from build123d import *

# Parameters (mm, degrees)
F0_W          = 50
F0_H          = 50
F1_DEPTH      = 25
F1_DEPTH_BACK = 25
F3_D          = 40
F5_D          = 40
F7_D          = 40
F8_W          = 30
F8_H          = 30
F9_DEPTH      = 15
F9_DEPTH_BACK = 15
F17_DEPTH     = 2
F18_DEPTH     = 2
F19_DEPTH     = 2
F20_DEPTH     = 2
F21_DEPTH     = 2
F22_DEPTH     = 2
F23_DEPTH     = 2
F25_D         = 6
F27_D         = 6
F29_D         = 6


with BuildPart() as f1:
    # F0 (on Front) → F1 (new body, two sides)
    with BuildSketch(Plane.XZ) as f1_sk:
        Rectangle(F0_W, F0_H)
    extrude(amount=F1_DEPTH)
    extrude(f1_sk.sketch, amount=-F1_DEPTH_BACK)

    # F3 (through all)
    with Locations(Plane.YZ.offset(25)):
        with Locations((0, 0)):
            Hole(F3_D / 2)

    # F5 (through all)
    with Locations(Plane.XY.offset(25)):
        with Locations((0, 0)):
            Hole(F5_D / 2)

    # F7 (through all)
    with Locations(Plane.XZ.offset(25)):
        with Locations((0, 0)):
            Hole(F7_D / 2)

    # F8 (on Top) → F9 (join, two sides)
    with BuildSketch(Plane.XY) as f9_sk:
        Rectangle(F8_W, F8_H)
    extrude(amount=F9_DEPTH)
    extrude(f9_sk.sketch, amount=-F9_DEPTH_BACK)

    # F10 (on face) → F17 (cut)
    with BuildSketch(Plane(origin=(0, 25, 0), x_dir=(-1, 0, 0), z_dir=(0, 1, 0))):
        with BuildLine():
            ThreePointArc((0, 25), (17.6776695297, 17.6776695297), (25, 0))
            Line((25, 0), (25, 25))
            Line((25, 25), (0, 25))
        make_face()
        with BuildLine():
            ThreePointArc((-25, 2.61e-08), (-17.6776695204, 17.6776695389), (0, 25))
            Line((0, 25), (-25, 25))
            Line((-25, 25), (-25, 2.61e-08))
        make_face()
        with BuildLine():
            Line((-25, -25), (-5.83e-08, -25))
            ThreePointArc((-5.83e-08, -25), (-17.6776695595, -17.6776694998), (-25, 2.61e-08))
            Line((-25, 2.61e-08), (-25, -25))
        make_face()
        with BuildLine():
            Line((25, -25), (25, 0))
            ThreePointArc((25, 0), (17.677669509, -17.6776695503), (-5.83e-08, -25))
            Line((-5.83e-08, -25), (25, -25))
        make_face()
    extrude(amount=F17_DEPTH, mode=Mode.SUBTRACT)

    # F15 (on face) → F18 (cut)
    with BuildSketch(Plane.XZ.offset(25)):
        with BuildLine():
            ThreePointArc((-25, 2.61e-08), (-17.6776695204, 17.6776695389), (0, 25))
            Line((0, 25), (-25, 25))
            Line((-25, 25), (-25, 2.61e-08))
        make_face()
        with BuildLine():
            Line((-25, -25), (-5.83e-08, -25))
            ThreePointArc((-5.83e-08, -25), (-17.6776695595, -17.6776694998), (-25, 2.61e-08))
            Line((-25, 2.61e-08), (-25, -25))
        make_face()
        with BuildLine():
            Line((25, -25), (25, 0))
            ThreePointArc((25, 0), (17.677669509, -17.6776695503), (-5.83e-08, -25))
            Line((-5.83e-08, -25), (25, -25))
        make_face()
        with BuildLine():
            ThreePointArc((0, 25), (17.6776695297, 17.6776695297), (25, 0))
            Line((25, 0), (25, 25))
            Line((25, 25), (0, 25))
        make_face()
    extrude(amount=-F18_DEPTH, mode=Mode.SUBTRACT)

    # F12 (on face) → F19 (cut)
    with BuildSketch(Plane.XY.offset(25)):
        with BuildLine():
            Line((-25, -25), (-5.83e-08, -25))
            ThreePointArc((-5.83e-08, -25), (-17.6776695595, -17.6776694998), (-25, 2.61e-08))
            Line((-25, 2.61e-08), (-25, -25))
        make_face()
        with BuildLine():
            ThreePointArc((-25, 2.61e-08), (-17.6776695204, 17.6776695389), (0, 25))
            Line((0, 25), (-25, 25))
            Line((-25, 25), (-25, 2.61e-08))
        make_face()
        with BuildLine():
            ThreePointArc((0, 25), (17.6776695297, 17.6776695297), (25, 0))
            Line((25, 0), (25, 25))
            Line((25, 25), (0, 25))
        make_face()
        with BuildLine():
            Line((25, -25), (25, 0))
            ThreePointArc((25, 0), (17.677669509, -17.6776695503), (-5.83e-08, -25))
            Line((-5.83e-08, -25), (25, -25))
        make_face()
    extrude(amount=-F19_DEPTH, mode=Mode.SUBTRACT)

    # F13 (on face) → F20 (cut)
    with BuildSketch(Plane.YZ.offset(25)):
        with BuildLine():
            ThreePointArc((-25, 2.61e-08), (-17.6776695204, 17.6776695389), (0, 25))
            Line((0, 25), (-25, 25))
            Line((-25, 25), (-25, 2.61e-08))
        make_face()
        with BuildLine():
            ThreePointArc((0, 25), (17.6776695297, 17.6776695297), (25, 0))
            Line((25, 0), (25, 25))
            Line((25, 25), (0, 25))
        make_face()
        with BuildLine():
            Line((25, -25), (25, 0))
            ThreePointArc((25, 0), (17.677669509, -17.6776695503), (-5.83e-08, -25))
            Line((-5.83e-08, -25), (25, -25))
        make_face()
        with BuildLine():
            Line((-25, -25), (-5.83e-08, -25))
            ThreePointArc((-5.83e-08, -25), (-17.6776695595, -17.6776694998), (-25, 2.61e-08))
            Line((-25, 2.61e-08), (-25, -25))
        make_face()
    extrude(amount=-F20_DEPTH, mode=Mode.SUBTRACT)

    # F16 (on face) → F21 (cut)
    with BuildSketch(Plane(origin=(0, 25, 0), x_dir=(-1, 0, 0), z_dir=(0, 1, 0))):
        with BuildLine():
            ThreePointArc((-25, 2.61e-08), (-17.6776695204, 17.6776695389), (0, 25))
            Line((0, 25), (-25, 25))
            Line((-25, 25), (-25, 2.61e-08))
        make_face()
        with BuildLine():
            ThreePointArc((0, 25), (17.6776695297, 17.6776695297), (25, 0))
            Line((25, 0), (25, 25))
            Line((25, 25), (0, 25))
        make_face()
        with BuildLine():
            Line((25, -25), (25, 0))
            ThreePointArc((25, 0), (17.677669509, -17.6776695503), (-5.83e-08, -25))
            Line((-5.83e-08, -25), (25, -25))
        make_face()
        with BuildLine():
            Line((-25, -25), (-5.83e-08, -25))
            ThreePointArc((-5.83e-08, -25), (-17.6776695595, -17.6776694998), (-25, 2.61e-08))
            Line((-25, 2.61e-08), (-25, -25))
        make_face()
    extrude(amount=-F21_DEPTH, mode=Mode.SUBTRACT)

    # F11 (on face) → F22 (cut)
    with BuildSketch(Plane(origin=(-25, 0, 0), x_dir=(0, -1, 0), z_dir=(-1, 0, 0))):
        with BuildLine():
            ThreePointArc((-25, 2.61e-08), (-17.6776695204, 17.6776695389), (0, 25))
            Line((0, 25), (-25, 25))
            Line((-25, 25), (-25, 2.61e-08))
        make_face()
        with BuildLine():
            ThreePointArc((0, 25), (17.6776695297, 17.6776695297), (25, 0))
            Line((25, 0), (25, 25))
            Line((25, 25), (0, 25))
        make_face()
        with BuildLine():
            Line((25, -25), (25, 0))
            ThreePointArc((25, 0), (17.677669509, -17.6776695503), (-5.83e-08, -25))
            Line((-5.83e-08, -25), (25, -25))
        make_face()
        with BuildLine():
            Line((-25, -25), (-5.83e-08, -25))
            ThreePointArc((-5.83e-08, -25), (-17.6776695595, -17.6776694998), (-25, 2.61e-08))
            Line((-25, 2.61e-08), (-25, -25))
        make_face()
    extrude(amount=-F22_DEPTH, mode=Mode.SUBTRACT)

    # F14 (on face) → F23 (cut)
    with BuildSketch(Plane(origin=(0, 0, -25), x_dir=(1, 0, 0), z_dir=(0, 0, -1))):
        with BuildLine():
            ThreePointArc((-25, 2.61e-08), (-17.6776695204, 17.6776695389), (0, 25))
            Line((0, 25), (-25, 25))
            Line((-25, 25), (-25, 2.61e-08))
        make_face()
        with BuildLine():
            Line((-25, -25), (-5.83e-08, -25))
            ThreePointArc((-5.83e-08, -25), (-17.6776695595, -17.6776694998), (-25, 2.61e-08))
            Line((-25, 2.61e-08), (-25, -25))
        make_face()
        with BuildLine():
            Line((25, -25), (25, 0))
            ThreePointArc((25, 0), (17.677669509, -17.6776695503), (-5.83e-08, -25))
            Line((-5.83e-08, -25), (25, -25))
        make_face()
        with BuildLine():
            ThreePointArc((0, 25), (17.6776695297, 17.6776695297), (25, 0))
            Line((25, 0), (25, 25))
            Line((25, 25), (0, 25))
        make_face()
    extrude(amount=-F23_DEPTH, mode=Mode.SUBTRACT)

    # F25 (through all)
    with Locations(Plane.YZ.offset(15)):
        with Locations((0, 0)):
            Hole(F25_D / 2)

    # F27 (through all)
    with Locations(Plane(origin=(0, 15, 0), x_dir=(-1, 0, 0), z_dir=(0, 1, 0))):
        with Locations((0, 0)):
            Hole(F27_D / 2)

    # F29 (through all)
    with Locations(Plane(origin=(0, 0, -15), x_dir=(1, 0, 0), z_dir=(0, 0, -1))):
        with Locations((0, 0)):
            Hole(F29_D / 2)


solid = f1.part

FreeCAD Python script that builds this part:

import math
import FreeCAD as App
import Part
import Sketcher

V = App.Vector

doc = App.newDocument("Part")
body = doc.addObject("PartDesign::Body", "Body")

# Sketch on XZ plane
sketch1 = doc.addObject("Sketcher::SketchObject", "Sketch")
body.addObject(sketch1)
sketch1.AttachmentSupport = (doc.XZ_Plane, [""])
sketch1.MapMode = "FlatFace"
sketch1.addGeometry([
    Part.LineSegment(V(-25, 25, 0), V(-25, -25, 0)),
    Part.LineSegment(V(-25, -25, 0), V(25, -25, 0)),
    Part.LineSegment(V(25, -25, 0), V(25, 25, 0)),
    Part.LineSegment(V(25, 25, 0), V(-25, 25, 0)),
], False)
sketch1.addConstraint([
    Sketcher.Constraint("Coincident", 0, 2, 1, 1),
    Sketcher.Constraint("Coincident", 1, 2, 2, 1),
    Sketcher.Constraint("Coincident", 2, 2, 3, 1),
    Sketcher.Constraint("Coincident", 3, 2, 0, 1),
    Sketcher.Constraint("Vertical", 0),
    Sketcher.Constraint("Horizontal", 1),
    Sketcher.Constraint("Vertical", 2),
    Sketcher.Constraint("Horizontal", 3),
    Sketcher.Constraint("Symmetric", 0, 2, 2, 2, -1, 1),
    Sketcher.Constraint("Equal", 3, 0),
    Sketcher.Constraint("DistanceX", 1, 1, 1, 2, 50.0),
])
pad1 = doc.addObject("PartDesign::Pad", "Pad")
body.addObject(pad1)
pad1.Profile = sketch1
pad1.Type = "TwoLengths"
pad1.Length = 25
pad1.Length2 = 25

# Sketch on YZ plane
sketch2 = doc.addObject("Sketcher::SketchObject", "Sketch001")
body.addObject(sketch2)
sketch2.AttachmentSupport = (doc.YZ_Plane, [""])
sketch2.MapMode = "FlatFace"
sketch2.AttachmentOffset = App.Placement(V(0, 0, 25), App.Rotation())
sketch2.addGeometry(Part.Circle(V(0, 0, 0), V(0, 0, 1), 20), False)
sketch2.addConstraint([
    Sketcher.Constraint("Coincident", 0, 3, -1, 1),
    Sketcher.Constraint("Diameter", 0, 40.0),
])
doc.recompute()
hole = doc.addObject("PartDesign::Hole", "Hole")
body.addObject(hole)
hole.Profile = sketch2
hole.ThreadType = "None"
hole.Diameter = 40
hole.DepthType = "ThroughAll"

# Sketch on XY plane
sketch3 = doc.addObject("Sketcher::SketchObject", "Sketch002")
body.addObject(sketch3)
sketch3.AttachmentSupport = (doc.XY_Plane, [""])
sketch3.MapMode = "FlatFace"
sketch3.AttachmentOffset = App.Placement(V(0, 0, 25), App.Rotation())
sketch3.addGeometry(Part.Circle(V(0, 0, 0), V(0, 0, 1), 20), False)
sketch3.addConstraint([
    Sketcher.Constraint("Coincident", 0, 3, -1, 1),
    Sketcher.Constraint("Diameter", 0, 40.0),
])
doc.recompute()
hole2 = doc.addObject("PartDesign::Hole", "Hole001")
body.addObject(hole2)
hole2.Profile = sketch3
hole2.ThreadType = "None"
hole2.Diameter = 40
hole2.DepthType = "ThroughAll"

# Sketch on XZ plane
sketch4 = doc.addObject("Sketcher::SketchObject", "Sketch003")
body.addObject(sketch4)
sketch4.AttachmentSupport = (doc.XZ_Plane, [""])
sketch4.MapMode = "FlatFace"
sketch4.AttachmentOffset = App.Placement(V(0, 0, 25), App.Rotation())
sketch4.addGeometry(Part.Circle(V(0, 0, 0), V(0, 0, 1), 20), False)
sketch4.addConstraint([
    Sketcher.Constraint("Coincident", 0, 3, -1, 1),
    Sketcher.Constraint("Diameter", 0, 40.0),
])
doc.recompute()
hole3 = doc.addObject("PartDesign::Hole", "Hole002")
body.addObject(hole3)
hole3.Profile = sketch4
hole3.ThreadType = "None"
hole3.Diameter = 40
hole3.DepthType = "ThroughAll"

# Sketch on XY plane
sketch5 = doc.addObject("Sketcher::SketchObject", "Sketch004")
body.addObject(sketch5)
sketch5.AttachmentSupport = (doc.XY_Plane, [""])
sketch5.MapMode = "FlatFace"
sketch5.addGeometry([
    Part.LineSegment(V(-15, 15, 0), V(-15, -15, 0)),
    Part.LineSegment(V(-15, -15, 0), V(15, -15, 0)),
    Part.LineSegment(V(15, -15, 0), V(15, 15, 0)),
    Part.LineSegment(V(15, 15, 0), V(-15, 15, 0)),
], False)
sketch5.addConstraint([
    Sketcher.Constraint("Coincident", 0, 2, 1, 1),
    Sketcher.Constraint("Coincident", 1, 2, 2, 1),
    Sketcher.Constraint("Coincident", 2, 2, 3, 1),
    Sketcher.Constraint("Coincident", 3, 2, 0, 1),
    Sketcher.Constraint("Vertical", 0),
    Sketcher.Constraint("Horizontal", 1),
    Sketcher.Constraint("Vertical", 2),
    Sketcher.Constraint("Horizontal", 3),
    Sketcher.Constraint("Symmetric", 0, 2, 2, 2, -1, 1),
    Sketcher.Constraint("Equal", 3, 0),
    Sketcher.Constraint("DistanceX", 1, 1, 1, 2, 30.0),
])
pad2 = doc.addObject("PartDesign::Pad", "Pad001")
body.addObject(pad2)
pad2.Profile = sketch5
pad2.Type = "TwoLengths"
pad2.Length = 15
pad2.Length2 = 15

# Sketch on XZ plane
sketch6 = doc.addObject("Sketcher::SketchObject", "Sketch005")
body.addObject(sketch6)
sketch6.AttachmentSupport = (doc.XZ_Plane, [""])
sketch6.MapMode = "FlatFace"
sketch6.AttachmentOffset = App.Placement(V(0, 0, -25), App.Rotation())
sketch6.addGeometry([
    Part.ArcOfCircle(Part.Circle(V(0, 0, 0), V(0, 0, 1), 25), math.radians(90), math.radians(180)),  # 0
    Part.LineSegment(V(-25, 0, 0), V(-25, 25, 0)),  # 1
    Part.LineSegment(V(-25, 25, 0), V(0, 25, 0)),  # 2
    Part.ArcOfCircle(Part.Circle(V(0, 0, 0), V(0, 0, 1), 25), math.radians(0), math.radians(90)),  # 3
    Part.LineSegment(V(0, 25, 0), V(25, 25, 0)),  # 4
    Part.LineSegment(V(25, 25, 0), V(25, 0, 0)),  # 5
    Part.LineSegment(V(25, -25, 0), V(0, -25, 0)),  # 6
    Part.ArcOfCircle(Part.Circle(V(0, 0, 0), V(0, 0, 1), 25), math.radians(-90), math.radians(0)),  # 7
    Part.LineSegment(V(25, 0, 0), V(25, -25, 0)),  # 8
    Part.LineSegment(V(-25, -25, 0), V(-25, 0, 0)),  # 9
    Part.ArcOfCircle(Part.Circle(V(0, 0, 0), V(0, 0, 1), 25), math.radians(180), math.radians(270)),  # 10
    Part.LineSegment(V(0, -25, 0), V(-25, -25, 0)),  # 11
], False)
sketch6.addConstraint([
    Sketcher.Constraint("Tangent", 0, 2, 1, 1),
    Sketcher.Constraint("Coincident", 1, 2, 2, 1),
    Sketcher.Constraint("Tangent", 2, 2, 0, 1),
    Sketcher.Constraint("Tangent", 3, 2, 4, 1),
    Sketcher.Constraint("Coincident", 4, 2, 5, 1),
    Sketcher.Constraint("Tangent", 5, 2, 3, 1),
    Sketcher.Constraint("Tangent", 6, 2, 7, 1),
    Sketcher.Constraint("Tangent", 7, 2, 8, 1),
    Sketcher.Constraint("Coincident", 8, 2, 6, 1),
    Sketcher.Constraint("Tangent", 9, 2, 10, 1),
    Sketcher.Constraint("Tangent", 10, 2, 11, 1),
    Sketcher.Constraint("Coincident", 11, 2, 9, 1),
    Sketcher.Constraint("Vertical", 1),
    Sketcher.Constraint("Horizontal", 2),
    Sketcher.Constraint("Horizontal", 4),
    Sketcher.Constraint("Vertical", 5),
    Sketcher.Constraint("Horizontal", 6),
    Sketcher.Constraint("Vertical", 8),
    Sketcher.Constraint("Vertical", 9),
    Sketcher.Constraint("Horizontal", 11),
    Sketcher.Constraint("Coincident", 0, 3, -1, 1),
    Sketcher.Constraint("Coincident", 3, 3, -1, 1),
    Sketcher.Constraint("Coincident", 7, 3, -1, 1),
    Sketcher.Constraint("Coincident", 10, 3, -1, 1),
    Sketcher.Constraint("Equal", 0, 3),
    Sketcher.Constraint("Equal", 3, 7),
    Sketcher.Constraint("Equal", 7, 10),
    Sketcher.Constraint("Radius", 0, 25.0),
])
pocket1 = doc.addObject("PartDesign::Pocket", "Pocket")
body.addObject(pocket1)
pocket1.Profile = sketch6
pocket1.Length = 2

# Sketch on XZ plane
sketch7 = doc.addObject("Sketcher::SketchObject", "Sketch006")
body.addObject(sketch7)
sketch7.AttachmentSupport = (doc.XZ_Plane, [""])
sketch7.MapMode = "FlatFace"
sketch7.AttachmentOffset = App.Placement(V(0, 0, 25), App.Rotation())
sketch7.addGeometry([
    Part.ArcOfCircle(Part.Circle(V(0, 0, 0), V(0, 0, 1), 25), math.radians(90), math.radians(180)),  # 0
    Part.LineSegment(V(0, 25, 0), V(-25, 25, 0)),  # 1
    Part.LineSegment(V(-25, 25, 0), V(-25, 0, 0)),  # 2
    Part.LineSegment(V(-25, -25, 0), V(0, -25, 0)),  # 3
    Part.ArcOfCircle(Part.Circle(V(0, 0, 0), V(0, 0, 1), 25), math.radians(180), math.radians(270)),  # 4
    Part.LineSegment(V(-25, 0, 0), V(-25, -25, 0)),  # 5
    Part.LineSegment(V(25, -25, 0), V(25, 0, 0)),  # 6
    Part.ArcOfCircle(Part.Circle(V(0, 0, 0), V(0, 0, 1), 25), math.radians(-90), math.radians(0)),  # 7
    Part.LineSegment(V(0, -25, 0), V(25, -25, 0)),  # 8
    Part.ArcOfCircle(Part.Circle(V(0, 0, 0), V(0, 0, 1), 25), math.radians(0), math.radians(90)),  # 9
    Part.LineSegment(V(25, 0, 0), V(25, 25, 0)),  # 10
    Part.LineSegment(V(25, 25, 0), V(0, 25, 0)),  # 11
], False)
sketch7.addConstraint([
    Sketcher.Constraint("Tangent", 0, 1, 1, 1),
    Sketcher.Constraint("Coincident", 1, 2, 2, 1),
    Sketcher.Constraint("Tangent", 2, 2, 0, 2),
    Sketcher.Constraint("Tangent", 3, 2, 4, 2),
    Sketcher.Constraint("Tangent", 4, 1, 5, 1),
    Sketcher.Constraint("Coincident", 5, 2, 3, 1),
    Sketcher.Constraint("Tangent", 6, 2, 7, 2),
    Sketcher.Constraint("Tangent", 7, 1, 8, 1),
    Sketcher.Constraint("Coincident", 8, 2, 6, 1),
    Sketcher.Constraint("Tangent", 9, 1, 10, 1),
    Sketcher.Constraint("Coincident", 10, 2, 11, 1),
    Sketcher.Constraint("Tangent", 11, 2, 9, 2),
    Sketcher.Constraint("Horizontal", 1),
    Sketcher.Constraint("Vertical", 2),
    Sketcher.Constraint("Horizontal", 3),
    Sketcher.Constraint("Vertical", 5),
    Sketcher.Constraint("Vertical", 6),
    Sketcher.Constraint("Horizontal", 8),
    Sketcher.Constraint("Vertical", 10),
    Sketcher.Constraint("Horizontal", 11),
    Sketcher.Constraint("Coincident", 0, 3, -1, 1),
    Sketcher.Constraint("Coincident", 4, 3, -1, 1),
    Sketcher.Constraint("Coincident", 7, 3, -1, 1),
    Sketcher.Constraint("Coincident", 9, 3, -1, 1),
    Sketcher.Constraint("Equal", 0, 4),
    Sketcher.Constraint("Equal", 4, 7),
    Sketcher.Constraint("Equal", 7, 9),
    Sketcher.Constraint("Radius", 0, 25.0),
])
pocket2 = doc.addObject("PartDesign::Pocket", "Pocket001")
body.addObject(pocket2)
pocket2.Profile = sketch7
pocket2.Length = 2

# Sketch on XY plane
sketch8 = doc.addObject("Sketcher::SketchObject", "Sketch007")
body.addObject(sketch8)
sketch8.AttachmentSupport = (doc.XY_Plane, [""])
sketch8.MapMode = "FlatFace"
sketch8.AttachmentOffset = App.Placement(V(0, 0, 25), App.Rotation())
sketch8.addGeometry([
    Part.LineSegment(V(-25, -25, 0), V(0, -25, 0)),  # 0
    Part.ArcOfCircle(Part.Circle(V(0, 0, 0), V(0, 0, 1), 25), math.radians(180), math.radians(270)),  # 1
    Part.LineSegment(V(-25, 0, 0), V(-25, -25, 0)),  # 2
    Part.ArcOfCircle(Part.Circle(V(0, 0, 0), V(0, 0, 1), 25), math.radians(90), math.radians(180)),  # 3
    Part.LineSegment(V(0, 25, 0), V(-25, 25, 0)),  # 4
    Part.LineSegment(V(-25, 25, 0), V(-25, 0, 0)),  # 5
    Part.ArcOfCircle(Part.Circle(V(0, 0, 0), V(0, 0, 1), 25), math.radians(0), math.radians(90)),  # 6
    Part.LineSegment(V(25, 0, 0), V(25, 25, 0)),  # 7
    Part.LineSegment(V(25, 25, 0), V(0, 25, 0)),  # 8
    Part.LineSegment(V(25, -25, 0), V(25, 0, 0)),  # 9
    Part.ArcOfCircle(Part.Circle(V(0, 0, 0), V(0, 0, 1), 25), math.radians(-90), math.radians(0)),  # 10
    Part.LineSegment(V(0, -25, 0), V(25, -25, 0)),  # 11
], False)
sketch8.addConstraint([
    Sketcher.Constraint("Tangent", 0, 2, 1, 2),
    Sketcher.Constraint("Tangent", 1, 1, 2, 1),
    Sketcher.Constraint("Coincident", 2, 2, 0, 1),
    Sketcher.Constraint("Tangent", 3, 1, 4, 1),
    Sketcher.Constraint("Coincident", 4, 2, 5, 1),
    Sketcher.Constraint("Tangent", 5, 2, 3, 2),
    Sketcher.Constraint("Tangent", 6, 1, 7, 1),
    Sketcher.Constraint("Coincident", 7, 2, 8, 1),
    Sketcher.Constraint("Tangent", 8, 2, 6, 2),
    Sketcher.Constraint("Tangent", 9, 2, 10, 2),
    Sketcher.Constraint("Tangent", 10, 1, 11, 1),
    Sketcher.Constraint("Coincident", 11, 2, 9, 1),
    Sketcher.Constraint("Horizontal", 0),
    Sketcher.Constraint("Vertical", 2),
    Sketcher.Constraint("Horizontal", 4),
    Sketcher.Constraint("Vertical", 5),
    Sketcher.Constraint("Vertical", 7),
    Sketcher.Constraint("Horizontal", 8),
    Sketcher.Constraint("Vertical", 9),
    Sketcher.Constraint("Horizontal", 11),
    Sketcher.Constraint("Coincident", 1, 3, -1, 1),
    Sketcher.Constraint("Coincident", 3, 3, -1, 1),
    Sketcher.Constraint("Coincident", 6, 3, -1, 1),
    Sketcher.Constraint("Coincident", 10, 3, -1, 1),
    Sketcher.Constraint("Equal", 1, 3),
    Sketcher.Constraint("Equal", 3, 6),
    Sketcher.Constraint("Equal", 6, 10),
    Sketcher.Constraint("Radius", 1, 25.0),
])
pocket3 = doc.addObject("PartDesign::Pocket", "Pocket002")
body.addObject(pocket3)
pocket3.Profile = sketch8
pocket3.Length = 2

# Sketch on YZ plane
sketch9 = doc.addObject("Sketcher::SketchObject", "Sketch008")
body.addObject(sketch9)
sketch9.AttachmentSupport = (doc.YZ_Plane, [""])
sketch9.MapMode = "FlatFace"
sketch9.AttachmentOffset = App.Placement(V(0, 0, 25), App.Rotation())
sketch9.addGeometry([
    Part.ArcOfCircle(Part.Circle(V(0, 0, 0), V(0, 0, 1), 25), math.radians(90), math.radians(180)),  # 0
    Part.LineSegment(V(0, 25, 0), V(-25, 25, 0)),  # 1
    Part.LineSegment(V(-25, 25, 0), V(-25, 0, 0)),  # 2
    Part.ArcOfCircle(Part.Circle(V(0, 0, 0), V(0, 0, 1), 25), math.radians(0), math.radians(90)),  # 3
    Part.LineSegment(V(25, 0, 0), V(25, 25, 0)),  # 4
    Part.LineSegment(V(25, 25, 0), V(0, 25, 0)),  # 5
    Part.LineSegment(V(25, -25, 0), V(25, 0, 0)),  # 6
    Part.ArcOfCircle(Part.Circle(V(0, 0, 0), V(0, 0, 1), 25), math.radians(-90), math.radians(0)),  # 7
    Part.LineSegment(V(0, -25, 0), V(25, -25, 0)),  # 8
    Part.LineSegment(V(-25, -25, 0), V(0, -25, 0)),  # 9
    Part.ArcOfCircle(Part.Circle(V(0, 0, 0), V(0, 0, 1), 25), math.radians(180), math.radians(270)),  # 10
    Part.LineSegment(V(-25, 0, 0), V(-25, -25, 0)),  # 11
], False)
sketch9.addConstraint([
    Sketcher.Constraint("Tangent", 0, 1, 1, 1),
    Sketcher.Constraint("Coincident", 1, 2, 2, 1),
    Sketcher.Constraint("Tangent", 2, 2, 0, 2),
    Sketcher.Constraint("Tangent", 3, 1, 4, 1),
    Sketcher.Constraint("Coincident", 4, 2, 5, 1),
    Sketcher.Constraint("Tangent", 5, 2, 3, 2),
    Sketcher.Constraint("Tangent", 6, 2, 7, 2),
    Sketcher.Constraint("Tangent", 7, 1, 8, 1),
    Sketcher.Constraint("Coincident", 8, 2, 6, 1),
    Sketcher.Constraint("Tangent", 9, 2, 10, 2),
    Sketcher.Constraint("Tangent", 10, 1, 11, 1),
    Sketcher.Constraint("Coincident", 11, 2, 9, 1),
    Sketcher.Constraint("Horizontal", 1),
    Sketcher.Constraint("Vertical", 2),
    Sketcher.Constraint("Vertical", 4),
    Sketcher.Constraint("Horizontal", 5),
    Sketcher.Constraint("Vertical", 6),
    Sketcher.Constraint("Horizontal", 8),
    Sketcher.Constraint("Horizontal", 9),
    Sketcher.Constraint("Vertical", 11),
    Sketcher.Constraint("Coincident", 0, 3, -1, 1),
    Sketcher.Constraint("Coincident", 3, 3, -1, 1),
    Sketcher.Constraint("Coincident", 7, 3, -1, 1),
    Sketcher.Constraint("Coincident", 10, 3, -1, 1),
    Sketcher.Constraint("Equal", 0, 3),
    Sketcher.Constraint("Equal", 3, 7),
    Sketcher.Constraint("Equal", 7, 10),
    Sketcher.Constraint("Radius", 0, 25.0),
])
pocket4 = doc.addObject("PartDesign::Pocket", "Pocket003")
body.addObject(pocket4)
pocket4.Profile = sketch9
pocket4.Length = 2

# Sketch on XZ plane
sketch10 = doc.addObject("Sketcher::SketchObject", "Sketch009")
body.addObject(sketch10)
sketch10.AttachmentSupport = (doc.XZ_Plane, [""])
sketch10.MapMode = "FlatFace"
sketch10.AttachmentOffset = App.Placement(V(0, 0, -25), App.Rotation())
sketch10.addGeometry([
    Part.ArcOfCircle(Part.Circle(V(0, 0, 0), V(0, 0, 1), 25), math.radians(0), math.radians(90)),  # 0
    Part.LineSegment(V(0, 25, 0), V(25, 25, 0)),  # 1
    Part.LineSegment(V(25, 25, 0), V(25, 0, 0)),  # 2
    Part.ArcOfCircle(Part.Circle(V(0, 0, 0), V(0, 0, 1), 25), math.radians(90), math.radians(180)),  # 3
    Part.LineSegment(V(-25, 0, 0), V(-25, 25, 0)),  # 4
    Part.LineSegment(V(-25, 25, 0), V(0, 25, 0)),  # 5
    Part.LineSegment(V(-25, -25, 0), V(-25, 0, 0)),  # 6
    Part.ArcOfCircle(Part.Circle(V(0, 0, 0), V(0, 0, 1), 25), math.radians(180), math.radians(270)),  # 7
    Part.LineSegment(V(0, -25, 0), V(-25, -25, 0)),  # 8
    Part.LineSegment(V(25, -25, 0), V(0, -25, 0)),  # 9
    Part.ArcOfCircle(Part.Circle(V(0, 0, 0), V(0, 0, 1), 25), math.radians(-90), math.radians(0)),  # 10
    Part.LineSegment(V(25, 0, 0), V(25, -25, 0)),  # 11
], False)
sketch10.addConstraint([
    Sketcher.Constraint("Tangent", 0, 2, 1, 1),
    Sketcher.Constraint("Coincident", 1, 2, 2, 1),
    Sketcher.Constraint("Tangent", 2, 2, 0, 1),
    Sketcher.Constraint("Tangent", 3, 2, 4, 1),
    Sketcher.Constraint("Coincident", 4, 2, 5, 1),
    Sketcher.Constraint("Tangent", 5, 2, 3, 1),
    Sketcher.Constraint("Tangent", 6, 2, 7, 1),
    Sketcher.Constraint("Tangent", 7, 2, 8, 1),
    Sketcher.Constraint("Coincident", 8, 2, 6, 1),
    Sketcher.Constraint("Tangent", 9, 2, 10, 1),
    Sketcher.Constraint("Tangent", 10, 2, 11, 1),
    Sketcher.Constraint("Coincident", 11, 2, 9, 1),
    Sketcher.Constraint("Horizontal", 1),
    Sketcher.Constraint("Vertical", 2),
    Sketcher.Constraint("Vertical", 4),
    Sketcher.Constraint("Horizontal", 5),
    Sketcher.Constraint("Vertical", 6),
    Sketcher.Constraint("Horizontal", 8),
    Sketcher.Constraint("Horizontal", 9),
    Sketcher.Constraint("Vertical", 11),
    Sketcher.Constraint("Coincident", 0, 3, -1, 1),
    Sketcher.Constraint("Coincident", 3, 3, -1, 1),
    Sketcher.Constraint("Coincident", 7, 3, -1, 1),
    Sketcher.Constraint("Coincident", 10, 3, -1, 1),
    Sketcher.Constraint("Equal", 0, 3),
    Sketcher.Constraint("Equal", 3, 7),
    Sketcher.Constraint("Equal", 7, 10),
    Sketcher.Constraint("Radius", 0, 25.0),
])
pocket5 = doc.addObject("PartDesign::Pocket", "Pocket004")
body.addObject(pocket5)
pocket5.Profile = sketch10
pocket5.Length = 2
pocket5.Reversed = True

# Sketch on YZ plane
sketch11 = doc.addObject("Sketcher::SketchObject", "Sketch010")
body.addObject(sketch11)
sketch11.AttachmentSupport = (doc.YZ_Plane, [""])
sketch11.MapMode = "FlatFace"
sketch11.AttachmentOffset = App.Placement(V(0, 0, -25), App.Rotation())
sketch11.addGeometry([
    Part.ArcOfCircle(Part.Circle(V(0, 0, 0), V(0, 0, 1), 25), math.radians(0), math.radians(90)),  # 0
    Part.LineSegment(V(0, 25, 0), V(25, 25, 0)),  # 1
    Part.LineSegment(V(25, 25, 0), V(25, 0, 0)),  # 2
    Part.ArcOfCircle(Part.Circle(V(0, 0, 0), V(0, 0, 1), 25), math.radians(90), math.radians(180)),  # 3
    Part.LineSegment(V(-25, 0, 0), V(-25, 25, 0)),  # 4
    Part.LineSegment(V(-25, 25, 0), V(0, 25, 0)),  # 5
    Part.LineSegment(V(-25, -25, 0), V(-25, 0, 0)),  # 6
    Part.ArcOfCircle(Part.Circle(V(0, 0, 0), V(0, 0, 1), 25), math.radians(180), math.radians(270)),  # 7
    Part.LineSegment(V(0, -25, 0), V(-25, -25, 0)),  # 8
    Part.LineSegment(V(25, -25, 0), V(0, -25, 0)),  # 9
    Part.ArcOfCircle(Part.Circle(V(0, 0, 0), V(0, 0, 1), 25), math.radians(-90), math.radians(0)),  # 10
    Part.LineSegment(V(25, 0, 0), V(25, -25, 0)),  # 11
], False)
sketch11.addConstraint([
    Sketcher.Constraint("Tangent", 0, 2, 1, 1),
    Sketcher.Constraint("Coincident", 1, 2, 2, 1),
    Sketcher.Constraint("Tangent", 2, 2, 0, 1),
    Sketcher.Constraint("Tangent", 3, 2, 4, 1),
    Sketcher.Constraint("Coincident", 4, 2, 5, 1),
    Sketcher.Constraint("Tangent", 5, 2, 3, 1),
    Sketcher.Constraint("Tangent", 6, 2, 7, 1),
    Sketcher.Constraint("Tangent", 7, 2, 8, 1),
    Sketcher.Constraint("Coincident", 8, 2, 6, 1),
    Sketcher.Constraint("Tangent", 9, 2, 10, 1),
    Sketcher.Constraint("Tangent", 10, 2, 11, 1),
    Sketcher.Constraint("Coincident", 11, 2, 9, 1),
    Sketcher.Constraint("Horizontal", 1),
    Sketcher.Constraint("Vertical", 2),
    Sketcher.Constraint("Vertical", 4),
    Sketcher.Constraint("Horizontal", 5),
    Sketcher.Constraint("Vertical", 6),
    Sketcher.Constraint("Horizontal", 8),
    Sketcher.Constraint("Horizontal", 9),
    Sketcher.Constraint("Vertical", 11),
    Sketcher.Constraint("Coincident", 0, 3, -1, 1),
    Sketcher.Constraint("Coincident", 3, 3, -1, 1),
    Sketcher.Constraint("Coincident", 7, 3, -1, 1),
    Sketcher.Constraint("Coincident", 10, 3, -1, 1),
    Sketcher.Constraint("Equal", 0, 3),
    Sketcher.Constraint("Equal", 3, 7),
    Sketcher.Constraint("Equal", 7, 10),
    Sketcher.Constraint("Radius", 0, 25.0),
])
pocket6 = doc.addObject("PartDesign::Pocket", "Pocket005")
body.addObject(pocket6)
pocket6.Profile = sketch11
pocket6.Length = 2
pocket6.Reversed = True

# Sketch on XY plane
sketch12 = doc.addObject("Sketcher::SketchObject", "Sketch011")
body.addObject(sketch12)
sketch12.AttachmentSupport = (doc.XY_Plane, [""])
sketch12.MapMode = "FlatFace"
sketch12.AttachmentOffset = App.Placement(V(0, 0, -25), App.Rotation())
sketch12.addGeometry([
    Part.ArcOfCircle(Part.Circle(V(0, 0, 0), V(0, 0, 1), 25), math.radians(-180), math.radians(-90)),  # 0
    Part.LineSegment(V(0, -25, 0), V(-25, -25, 0)),  # 1
    Part.LineSegment(V(-25, -25, 0), V(-25, 0, 0)),  # 2
    Part.LineSegment(V(-25, 25, 0), V(0, 25, 0)),  # 3
    Part.ArcOfCircle(Part.Circle(V(0, 0, 0), V(0, 0, 1), 25), math.radians(90), math.radians(180)),  # 4
    Part.LineSegment(V(-25, 0, 0), V(-25, 25, 0)),  # 5
    Part.LineSegment(V(25, 25, 0), V(25, 0, 0)),  # 6
    Part.ArcOfCircle(Part.Circle(V(0, 0, 0), V(0, 0, 1), 25), math.radians(0), math.radians(90)),  # 7
    Part.LineSegment(V(0, 25, 0), V(25, 25, 0)),  # 8
    Part.ArcOfCircle(Part.Circle(V(0, 0, 0), V(0, 0, 1), 25), math.radians(-90), math.radians(0)),  # 9
    Part.LineSegment(V(25, 0, 0), V(25, -25, 0)),  # 10
    Part.LineSegment(V(25, -25, 0), V(0, -25, 0)),  # 11
], False)
sketch12.addConstraint([
    Sketcher.Constraint("Tangent", 0, 2, 1, 1),
    Sketcher.Constraint("Coincident", 1, 2, 2, 1),
    Sketcher.Constraint("Tangent", 2, 2, 0, 1),
    Sketcher.Constraint("Tangent", 3, 2, 4, 1),
    Sketcher.Constraint("Tangent", 4, 2, 5, 1),
    Sketcher.Constraint("Coincident", 5, 2, 3, 1),
    Sketcher.Constraint("Tangent", 6, 2, 7, 1),
    Sketcher.Constraint("Tangent", 7, 2, 8, 1),
    Sketcher.Constraint("Coincident", 8, 2, 6, 1),
    Sketcher.Constraint("Tangent", 9, 2, 10, 1),
    Sketcher.Constraint("Coincident", 10, 2, 11, 1),
    Sketcher.Constraint("Tangent", 11, 2, 9, 1),
    Sketcher.Constraint("Horizontal", 1),
    Sketcher.Constraint("Vertical", 2),
    Sketcher.Constraint("Horizontal", 3),
    Sketcher.Constraint("Vertical", 5),
    Sketcher.Constraint("Vertical", 6),
    Sketcher.Constraint("Horizontal", 8),
    Sketcher.Constraint("Vertical", 10),
    Sketcher.Constraint("Horizontal", 11),
    Sketcher.Constraint("Coincident", 0, 3, -1, 1),
    Sketcher.Constraint("Coincident", 4, 3, -1, 1),
    Sketcher.Constraint("Coincident", 7, 3, -1, 1),
    Sketcher.Constraint("Coincident", 9, 3, -1, 1),
    Sketcher.Constraint("Equal", 0, 4),
    Sketcher.Constraint("Equal", 4, 7),
    Sketcher.Constraint("Equal", 7, 9),
    Sketcher.Constraint("Radius", 0, 25.0),
])
pocket7 = doc.addObject("PartDesign::Pocket", "Pocket006")
body.addObject(pocket7)
pocket7.Profile = sketch12
pocket7.Length = 2
pocket7.Reversed = True

# Sketch on YZ plane
sketch13 = doc.addObject("Sketcher::SketchObject", "Sketch012")
body.addObject(sketch13)
sketch13.AttachmentSupport = (doc.YZ_Plane, [""])
sketch13.MapMode = "FlatFace"
sketch13.AttachmentOffset = App.Placement(V(0, 0, 15), App.Rotation())
sketch13.addGeometry(Part.Circle(V(0, 0, 0), V(0, 0, 1), 3), False)
sketch13.addConstraint([
    Sketcher.Constraint("Coincident", 0, 3, -1, 1),
    Sketcher.Constraint("Diameter", 0, 6.0),
])
doc.recompute()
hole4 = doc.addObject("PartDesign::Hole", "Hole003")
body.addObject(hole4)
hole4.Profile = sketch13
hole4.ThreadType = "None"
hole4.Diameter = 6
hole4.DepthType = "ThroughAll"

# Sketch on XZ plane
sketch14 = doc.addObject("Sketcher::SketchObject", "Sketch013")
body.addObject(sketch14)
sketch14.AttachmentSupport = (doc.XZ_Plane, [""])
sketch14.MapMode = "FlatFace"
sketch14.AttachmentOffset = App.Placement(V(0, 0, -15), App.Rotation())
sketch14.addGeometry(Part.Circle(V(0, 0, 0), V(0, 0, 1), 3), False)
sketch14.addConstraint([
    Sketcher.Constraint("Coincident", 0, 3, -1, 1),
    Sketcher.Constraint("Diameter", 0, 6.0),
])
doc.recompute()
hole5 = doc.addObject("PartDesign::Hole", "Hole004")
body.addObject(hole5)
hole5.Profile = sketch14
hole5.ThreadType = "None"
hole5.Diameter = 6
hole5.DepthType = "ThroughAll"
hole5.Reversed = True

# Sketch on XY plane
sketch15 = doc.addObject("Sketcher::SketchObject", "Sketch014")
body.addObject(sketch15)
sketch15.AttachmentSupport = (doc.XY_Plane, [""])
sketch15.MapMode = "FlatFace"
sketch15.AttachmentOffset = App.Placement(V(0, 0, -15), App.Rotation())
sketch15.addGeometry(Part.Circle(V(0, 0, 0), V(0, 0, 1), 3), False)
sketch15.addConstraint([
    Sketcher.Constraint("Coincident", 0, 3, -1, 1),
    Sketcher.Constraint("Diameter", 0, 6.0),
])
doc.recompute()
hole6 = doc.addObject("PartDesign::Hole", "Hole005")
body.addObject(hole6)
hole6.Profile = sketch15
hole6.ThreadType = "None"
hole6.Diameter = 6
hole6.DepthType = "ThroughAll"
hole6.Reversed = True

doc.recompute()
